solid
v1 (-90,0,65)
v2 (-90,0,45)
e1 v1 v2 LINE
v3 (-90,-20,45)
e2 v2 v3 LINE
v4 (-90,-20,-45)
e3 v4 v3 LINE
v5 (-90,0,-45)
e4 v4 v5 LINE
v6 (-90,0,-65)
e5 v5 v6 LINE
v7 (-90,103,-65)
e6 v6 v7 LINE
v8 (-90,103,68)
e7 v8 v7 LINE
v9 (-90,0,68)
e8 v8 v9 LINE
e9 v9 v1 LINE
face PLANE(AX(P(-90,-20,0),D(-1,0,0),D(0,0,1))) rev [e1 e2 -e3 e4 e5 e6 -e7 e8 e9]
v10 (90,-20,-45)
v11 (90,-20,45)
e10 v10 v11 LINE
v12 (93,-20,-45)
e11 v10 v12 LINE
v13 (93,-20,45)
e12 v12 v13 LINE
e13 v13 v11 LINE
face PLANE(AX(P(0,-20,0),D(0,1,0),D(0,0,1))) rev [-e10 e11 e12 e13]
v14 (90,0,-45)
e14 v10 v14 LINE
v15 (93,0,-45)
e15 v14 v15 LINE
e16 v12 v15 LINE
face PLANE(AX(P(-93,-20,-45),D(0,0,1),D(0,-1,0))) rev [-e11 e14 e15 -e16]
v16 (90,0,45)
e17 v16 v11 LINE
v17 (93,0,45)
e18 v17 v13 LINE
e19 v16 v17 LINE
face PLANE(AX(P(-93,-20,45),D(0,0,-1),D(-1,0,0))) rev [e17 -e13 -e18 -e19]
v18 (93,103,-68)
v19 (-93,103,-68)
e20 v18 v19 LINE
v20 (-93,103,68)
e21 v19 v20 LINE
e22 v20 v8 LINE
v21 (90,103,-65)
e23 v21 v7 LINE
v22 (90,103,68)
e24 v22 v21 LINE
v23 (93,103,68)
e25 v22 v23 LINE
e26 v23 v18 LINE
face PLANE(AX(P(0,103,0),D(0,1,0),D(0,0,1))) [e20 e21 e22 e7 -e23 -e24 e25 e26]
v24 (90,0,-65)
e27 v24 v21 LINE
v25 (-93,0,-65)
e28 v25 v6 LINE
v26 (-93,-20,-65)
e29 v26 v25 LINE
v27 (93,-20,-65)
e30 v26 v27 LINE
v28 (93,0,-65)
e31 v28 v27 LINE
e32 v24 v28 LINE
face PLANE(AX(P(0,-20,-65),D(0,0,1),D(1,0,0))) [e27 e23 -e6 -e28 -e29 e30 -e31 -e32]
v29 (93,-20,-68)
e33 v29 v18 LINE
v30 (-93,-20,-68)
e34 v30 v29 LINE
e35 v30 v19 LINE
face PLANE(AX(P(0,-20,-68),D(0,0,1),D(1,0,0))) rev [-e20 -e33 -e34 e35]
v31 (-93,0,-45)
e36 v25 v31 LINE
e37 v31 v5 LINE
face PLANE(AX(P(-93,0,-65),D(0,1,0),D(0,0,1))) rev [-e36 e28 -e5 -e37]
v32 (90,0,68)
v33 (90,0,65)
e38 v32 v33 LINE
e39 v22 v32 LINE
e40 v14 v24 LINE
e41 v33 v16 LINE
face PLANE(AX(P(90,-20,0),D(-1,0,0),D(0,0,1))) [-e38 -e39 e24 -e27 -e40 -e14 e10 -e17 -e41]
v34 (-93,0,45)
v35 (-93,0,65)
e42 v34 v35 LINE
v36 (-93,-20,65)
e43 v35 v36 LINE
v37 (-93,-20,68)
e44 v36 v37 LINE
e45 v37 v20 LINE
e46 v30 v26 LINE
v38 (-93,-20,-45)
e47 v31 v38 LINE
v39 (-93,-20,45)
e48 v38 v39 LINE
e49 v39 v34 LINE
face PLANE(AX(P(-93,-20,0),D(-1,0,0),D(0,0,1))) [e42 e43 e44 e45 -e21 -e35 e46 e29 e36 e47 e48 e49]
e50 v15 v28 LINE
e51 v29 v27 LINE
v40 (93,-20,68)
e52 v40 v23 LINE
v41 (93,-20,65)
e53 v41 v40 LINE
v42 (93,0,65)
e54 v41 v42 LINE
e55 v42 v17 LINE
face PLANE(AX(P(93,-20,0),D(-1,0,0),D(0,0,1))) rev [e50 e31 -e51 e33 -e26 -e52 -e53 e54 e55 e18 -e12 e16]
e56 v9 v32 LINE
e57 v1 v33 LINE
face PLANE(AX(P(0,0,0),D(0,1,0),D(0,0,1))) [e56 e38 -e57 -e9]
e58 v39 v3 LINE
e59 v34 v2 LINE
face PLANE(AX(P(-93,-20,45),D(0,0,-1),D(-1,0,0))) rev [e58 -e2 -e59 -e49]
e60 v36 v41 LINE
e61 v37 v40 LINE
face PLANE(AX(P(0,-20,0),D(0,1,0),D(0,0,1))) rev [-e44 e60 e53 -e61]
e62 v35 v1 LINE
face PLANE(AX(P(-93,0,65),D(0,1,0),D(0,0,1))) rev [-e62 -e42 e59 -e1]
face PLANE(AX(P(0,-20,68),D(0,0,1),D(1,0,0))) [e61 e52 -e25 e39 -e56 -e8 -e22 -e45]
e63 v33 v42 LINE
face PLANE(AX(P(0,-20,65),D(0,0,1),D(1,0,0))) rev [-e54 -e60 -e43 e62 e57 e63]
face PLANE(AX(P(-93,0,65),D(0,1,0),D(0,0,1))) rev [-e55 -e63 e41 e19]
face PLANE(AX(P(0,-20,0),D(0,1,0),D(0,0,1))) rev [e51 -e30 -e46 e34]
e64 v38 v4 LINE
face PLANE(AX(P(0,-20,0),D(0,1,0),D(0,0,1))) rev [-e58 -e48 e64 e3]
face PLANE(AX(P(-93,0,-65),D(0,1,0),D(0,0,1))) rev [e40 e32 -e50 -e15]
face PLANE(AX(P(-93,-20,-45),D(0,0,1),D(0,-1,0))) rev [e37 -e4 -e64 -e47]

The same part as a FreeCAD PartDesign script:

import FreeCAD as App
import Part
import Sketcher

V = App.Vector
Q = App.Units.Quantity

doc = App.newDocument("Part")
params = doc.addObject("Spreadsheet::Sheet", "Params")
for row, (alias, value) in enumerate([
    ("sketch1_width", "186 mm"),
    ("sketch1_width2", "180 mm"),
    ("sketch1_height", "136 mm"),
    ("sketch1_height2", "130 mm"),
    ("pad1_length", "20 mm"),
    ("sketch2_width", "3 mm"),
    ("sketch2_width2", "180 mm"),
    ("sketch2_height", "133 mm"),
    ("sketch2_height2", "136 mm"),
    ("pad2_length", "103 mm"),
    ("sketch3_width", "20 mm"),
], start=1):
    params.set(f"A{row}", alias)
    params.set(f"B{row}", "=" + value)
    params.setAlias(f"B{row}", alias)

body = doc.addObject("PartDesign::Body", "Body")

# Sketch on XZ plane
sketch1 = body.newObject("Sketcher::SketchObject", "Sketch")
sketch1.AttachmentSupport = (doc.getObject("XZ_Plane"), [""])
sketch1.MapMode = "FlatFace"
sketch1.addGeometry([
    Part.LineSegment(V(-93, -68, 0), V(-93, 68, 0)),  # 0
    Part.LineSegment(V(-93, 68, 0), V(93, 68, 0)),  # 1
    Part.LineSegment(V(93, 68, 0), V(93, -68, 0)),  # 2
    Part.LineSegment(V(93, -68, 0), V(-93, -68, 0)),  # 3
    Part.LineSegment(V(90, 65, 0), V(-90, 65, 0)),  # 4
    Part.LineSegment(V(-90, 65, 0), V(-90, -65, 0)),  # 5
    Part.LineSegment(V(-90, -65, 0), V(90, -65, 0)),  # 6
    Part.LineSegment(V(90, -65, 0), V(90, 65, 0)),  # 7
], False)
sketch1.addConstraint([
    Sketcher.Constraint("Coincident", 0, 2, 1, 1),
    Sketcher.Constraint("Coincident", 1, 2, 2, 1),
    Sketcher.Constraint("Coincident", 2, 2, 3, 1),
    Sketcher.Constraint("Coincident", 3, 2, 0, 1),
    Sketcher.Constraint("Coincident", 4, 2, 5, 1),
    Sketcher.Constraint("Coincident", 5, 2, 6, 1),
    Sketcher.Constraint("Coincident", 6, 2, 7, 1),
    Sketcher.Constraint("Coincident", 7, 2, 4, 1),
    Sketcher.Constraint("Vertical", 0),
    Sketcher.Constraint("Horizontal", 1),
    Sketcher.Constraint("Vertical", 2),
    Sketcher.Constraint("Horizontal", 3),
    Sketcher.Constraint("Horizontal", 4),
    Sketcher.Constraint("Vertical", 5),
    Sketcher.Constraint("Horizontal", 6),
    Sketcher.Constraint("Vertical", 7),
    Sketcher.Constraint("Symmetric", 0, 2, 2, 2, -1, 1),
    Sketcher.Constraint("Symmetric", 4, 2, 6, 2, -1, 1),
    Sketcher.Constraint("DistanceX", 1, 1, 1, 2, Q("186 mm")),
    Sketcher.Constraint("DistanceX", 4, 2, 4, 1, Q("180 mm")),
    Sketcher.Constraint("DistanceY", 0, 1, 0, 2, Q("136 mm")),
    Sketcher.Constraint("DistanceY", 5, 2, 5, 1, Q("130 mm")),
])
sketch1.setExpression("Constraints[18]", "Params.sketch1_width")
sketch1.setExpression("Constraints[19]", "Params.sketch1_width2")
sketch1.setExpression("Constraints[20]", "Params.sketch1_height")
sketch1.setExpression("Constraints[21]", "Params.sketch1_height2")
pad1 = body.newObject("PartDesign::Pad", "Pad")
pad1.Profile = sketch1
pad1.setExpression("Length", "Params.pad1_length")

# Sketch on XZ plane
sketch2 = body.newObject("Sketcher::SketchObject", "Sketch001")
sketch2.AttachmentSupport = (doc.getObject("XZ_Plane"), [""])
sketch2.MapMode = "FlatFace"
sketch2.addGeometry([
    Part.LineSegment(V(-93, 68, 0), V(-90, 68, 0)),  # 0
    Part.LineSegment(V(-90, 68, 0), V(-90, -65, 0)),  # 1
    Part.LineSegment(V(-90, -65, 0), V(90, -65, 0)),  # 2
    Part.LineSegment(V(90, -65, 0), V(90, 68, 0)),  # 3
    Part.LineSegment(V(90, 68, 0), V(93, 68, 0)),  # 4
    Part.LineSegment(V(93, 68, 0), V(93, -68, 0)),  # 5
    Part.LineSegment(V(93, -68, 0), V(-93, -68, 0)),  # 6
    Part.LineSegment(V(-93, -68, 0), V(-93, 68, 0)),  # 7
], False)
sketch2.addConstraint([
    Sketcher.Constraint("Coincident", 0, 2, 1, 1),
    Sketcher.Constraint("Coincident", 1, 2, 2, 1),
    Sketcher.Constraint("Coincident", 2, 2, 3, 1),
    Sketcher.Constraint("Coincident", 3, 2, 4, 1),
    Sketcher.Constraint("Coincident", 4, 2, 5, 1),
    Sketcher.Constraint("Coincident", 5, 2, 6, 1),
    Sketcher.Constraint("Coincident", 6, 2, 7, 1),
    Sketcher.Constraint("Coincident", 7, 2, 0, 1),
    Sketcher.Constraint("Horizontal", 0),
    Sketcher.Constraint("Vertical", 1),
    Sketcher.Constraint("Horizontal", 2),
    Sketcher.Constraint("Vertical", 3),
    Sketcher.Constraint("Horizontal", 4),
    Sketcher.Constraint("Vertical", 5),
    Sketcher.Constraint("Horizontal", 6),
    Sketcher.Constraint("Vertical", 7),
    Sketcher.Constraint("Symmetric", 4, 2, 6, 2, -1, 1),
    Sketcher.Constraint("Symmetric", 0, 2, 3, 2, -2),
    Sketcher.Constraint("DistanceX", 0, 1, 0, 2, Q("3 mm")),
    Sketcher.Constraint("DistanceX", 2, 1, 2, 2, Q("180 mm")),
    Sketcher.Constraint("DistanceY", 1, 2, 1, 1, Q("133 mm")),
    Sketcher.Constraint("DistanceY", 5, 2, 5, 1, Q("136 mm")),
])
sketch2.setExpression("Constraints[18]", "Params.sketch2_width")
sketch2.setExpression("Constraints[19]", "Params.sketch2_width2")
sketch2.setExpression("Constraints[20]", "Params.sketch2_height")
sketch2.setExpression("Constraints[21]", "Params.sketch2_height2")
pad2 = body.newObject("PartDesign::Pad", "Pad001")
pad2.Profile = sketch2
pad2.setExpression("Length", "Params.pad2_length")
pad2.Reversed = True

# Sketch on YZ plane
sketch3 = body.newObject("Sketcher::SketchObject", "Sketch002")
sketch3.AttachmentSupport = (doc.getObject("YZ_Plane"), [""])
sketch3.MapMode = "FlatFace"
sketch3.AttachmentOffset = App.Placement(V(0, 0, 93), App.Rotation())
sketch3.addGeometry([
    Part.LineSegment(V(0, 65, 0), V(-20, 65, 0)),  # 0
    Part.LineSegment(V(-20, 65, 0), V(-20, 45, 0)),  # 1
    Part.LineSegment(V(-20, 45, 0), V(0, 45, 0)),  # 2
    Part.LineSegment(V(0, 45, 0), V(0, 65, 0)),  # 3
    Part.LineSegment(V(0, -45, 0), V(-20, -45, 0)),  # 4
    Part.LineSegment(V(-20, -45, 0), V(-20, -65, 0)),  # 5
    Part.LineSegment(V(-20, -65, 0), V(0, -65, 0)),  # 6
    Part.LineSegment(V(0, -65, 0), V(0, -45, 0)),  # 7
], False)
sketch3.addConstraint([
    Sketcher.Constraint("Coincident", 0, 2, 1, 1),
    Sketcher.Constraint("Coincident", 1, 2, 2, 1),
    Sketcher.Constraint("Coincident", 2, 2, 3, 1),
    Sketcher.Constraint("Coincident", 3, 2, 0, 1),
    Sketcher.Constraint("Coincident", 4, 2, 5, 1),
    Sketcher.Constraint("Coincident", 5, 2, 6, 1),
    Sketcher.Constraint("Coincident", 6, 2, 7, 1),
    Sketcher.Constraint("Coincident", 7, 2, 4, 1),
    Sketcher.Constraint("Horizontal", 0),
    Sketcher.Constraint("Vertical", 1),
    Sketcher.Constraint("Horizontal", 2),
    Sketcher.Constraint("Vertical", 3),
    Sketcher.Constraint("Horizontal", 4),
    Sketcher.Constraint("Vertical", 5),
    Sketcher.Constraint("Horizontal", 6),
    Sketcher.Constraint("Vertical", 7),
    Sketcher.Constraint("Symmetric", 3, 2, 6, 2, -1, 1),
    Sketcher.Constraint("Symmetric", 1, 2, 4, 2, -1),
    Sketcher.Constraint("PointOnObject", 2, 2, -2),
    Sketcher.Constraint("Equal", 6, 1),
    Sketcher.Constraint("DistanceX", 0, 2, 0, 1, Q("20 mm")),
    Sketcher.Constraint("DistanceY", -1, 1, 0, 2, Q("65 mm")),
])
sketch3.setExpression("Constraints[20]", "Params.sketch3_width")
pocket1 = body.newObject("PartDesign::Pocket", "Pocket")
pocket1.Profile = sketch3
pocket1.Type = "ThroughAll"
pocket1.Midplane = True

doc.recompute()
